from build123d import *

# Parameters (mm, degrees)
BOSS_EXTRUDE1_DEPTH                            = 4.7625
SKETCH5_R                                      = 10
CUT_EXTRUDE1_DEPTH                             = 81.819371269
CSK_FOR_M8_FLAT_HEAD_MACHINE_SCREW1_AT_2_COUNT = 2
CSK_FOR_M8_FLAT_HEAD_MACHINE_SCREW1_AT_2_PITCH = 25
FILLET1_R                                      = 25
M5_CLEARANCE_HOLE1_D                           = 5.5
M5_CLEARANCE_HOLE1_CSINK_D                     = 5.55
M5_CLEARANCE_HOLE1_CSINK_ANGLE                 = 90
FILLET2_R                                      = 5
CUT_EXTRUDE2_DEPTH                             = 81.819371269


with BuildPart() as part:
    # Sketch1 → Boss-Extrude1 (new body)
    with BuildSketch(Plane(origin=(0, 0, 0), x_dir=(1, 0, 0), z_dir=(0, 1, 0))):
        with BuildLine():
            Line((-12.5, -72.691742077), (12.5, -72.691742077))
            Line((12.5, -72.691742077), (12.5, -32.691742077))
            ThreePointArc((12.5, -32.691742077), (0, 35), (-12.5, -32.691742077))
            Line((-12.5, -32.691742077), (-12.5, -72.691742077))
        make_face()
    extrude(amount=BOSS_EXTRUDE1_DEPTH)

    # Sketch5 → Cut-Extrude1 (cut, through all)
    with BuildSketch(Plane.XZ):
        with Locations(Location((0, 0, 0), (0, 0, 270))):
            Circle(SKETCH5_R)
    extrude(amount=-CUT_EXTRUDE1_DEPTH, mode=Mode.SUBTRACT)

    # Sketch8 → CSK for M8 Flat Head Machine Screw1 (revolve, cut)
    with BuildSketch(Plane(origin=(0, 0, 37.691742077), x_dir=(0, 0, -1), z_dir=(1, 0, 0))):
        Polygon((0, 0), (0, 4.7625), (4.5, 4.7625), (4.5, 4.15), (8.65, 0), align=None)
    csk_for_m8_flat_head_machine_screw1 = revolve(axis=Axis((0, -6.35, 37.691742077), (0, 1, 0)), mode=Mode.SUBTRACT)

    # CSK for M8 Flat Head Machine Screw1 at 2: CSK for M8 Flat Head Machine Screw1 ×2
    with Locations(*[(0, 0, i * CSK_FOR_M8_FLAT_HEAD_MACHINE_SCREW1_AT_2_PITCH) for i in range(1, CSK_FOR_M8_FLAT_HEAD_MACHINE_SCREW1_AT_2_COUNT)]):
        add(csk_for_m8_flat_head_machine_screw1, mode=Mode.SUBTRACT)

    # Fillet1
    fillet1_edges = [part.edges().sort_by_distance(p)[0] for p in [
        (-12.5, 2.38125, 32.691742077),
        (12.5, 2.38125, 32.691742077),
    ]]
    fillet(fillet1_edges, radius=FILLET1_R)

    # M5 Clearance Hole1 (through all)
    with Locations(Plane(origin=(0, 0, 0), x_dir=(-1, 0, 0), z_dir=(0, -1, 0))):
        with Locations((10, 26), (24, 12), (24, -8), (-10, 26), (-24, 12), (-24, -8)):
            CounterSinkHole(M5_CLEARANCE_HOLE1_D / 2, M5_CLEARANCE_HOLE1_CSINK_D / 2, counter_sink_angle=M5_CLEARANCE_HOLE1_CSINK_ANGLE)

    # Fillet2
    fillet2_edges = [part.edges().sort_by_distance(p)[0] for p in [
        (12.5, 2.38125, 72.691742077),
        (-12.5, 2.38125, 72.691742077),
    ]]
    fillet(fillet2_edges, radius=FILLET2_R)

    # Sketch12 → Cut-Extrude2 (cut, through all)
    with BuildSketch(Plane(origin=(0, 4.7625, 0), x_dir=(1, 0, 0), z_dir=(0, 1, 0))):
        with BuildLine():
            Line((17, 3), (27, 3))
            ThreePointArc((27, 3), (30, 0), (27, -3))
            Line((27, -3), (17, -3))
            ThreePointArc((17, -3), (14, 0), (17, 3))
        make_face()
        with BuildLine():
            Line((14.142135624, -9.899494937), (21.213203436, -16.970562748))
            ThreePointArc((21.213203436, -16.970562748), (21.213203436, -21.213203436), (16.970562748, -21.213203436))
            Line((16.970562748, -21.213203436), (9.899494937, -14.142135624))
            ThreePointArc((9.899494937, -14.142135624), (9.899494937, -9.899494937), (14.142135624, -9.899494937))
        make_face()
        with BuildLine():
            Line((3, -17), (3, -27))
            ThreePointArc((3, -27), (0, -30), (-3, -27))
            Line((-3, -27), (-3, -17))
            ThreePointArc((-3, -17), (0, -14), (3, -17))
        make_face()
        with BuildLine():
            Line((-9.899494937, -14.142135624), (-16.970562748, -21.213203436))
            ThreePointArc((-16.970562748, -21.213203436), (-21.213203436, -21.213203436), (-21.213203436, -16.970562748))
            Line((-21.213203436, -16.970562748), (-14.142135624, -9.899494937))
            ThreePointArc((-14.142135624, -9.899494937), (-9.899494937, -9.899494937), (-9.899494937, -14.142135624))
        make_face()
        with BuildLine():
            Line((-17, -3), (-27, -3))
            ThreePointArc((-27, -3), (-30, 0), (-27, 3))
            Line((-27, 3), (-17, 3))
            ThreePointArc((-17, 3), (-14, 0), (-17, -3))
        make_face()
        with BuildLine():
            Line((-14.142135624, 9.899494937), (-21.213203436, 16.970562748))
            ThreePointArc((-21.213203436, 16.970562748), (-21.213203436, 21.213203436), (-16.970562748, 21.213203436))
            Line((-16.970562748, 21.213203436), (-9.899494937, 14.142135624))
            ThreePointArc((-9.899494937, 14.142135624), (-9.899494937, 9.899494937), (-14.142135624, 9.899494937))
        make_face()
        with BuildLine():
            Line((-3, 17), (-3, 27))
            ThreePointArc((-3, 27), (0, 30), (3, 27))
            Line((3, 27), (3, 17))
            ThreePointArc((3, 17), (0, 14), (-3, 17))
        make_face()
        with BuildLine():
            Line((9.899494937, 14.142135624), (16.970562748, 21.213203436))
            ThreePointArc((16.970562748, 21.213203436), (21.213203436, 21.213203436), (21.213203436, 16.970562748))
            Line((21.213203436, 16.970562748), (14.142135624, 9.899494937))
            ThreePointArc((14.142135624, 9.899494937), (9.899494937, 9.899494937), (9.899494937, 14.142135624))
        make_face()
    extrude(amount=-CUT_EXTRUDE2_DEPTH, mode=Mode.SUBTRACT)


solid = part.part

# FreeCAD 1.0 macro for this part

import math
import FreeCAD as App
import Part
import Sketcher
from FreeCAD import Vector
Q = App.Units.Quantity


def edges_at(feature, points):
    """Names of the edges that pass closest to the given points."""
    edges = feature.Shape.Edges
    near = lambda p: min(range(len(edges)), key=lambda i: edges[i].distToShape(Part.Vertex(*p))[0])
    return sorted({f"Edge{near(p) + 1}" for p in points})

doc = App.newDocument("Part")
body = doc.addObject("PartDesign::Body", "Body")

sketch1 = body.newObject("Sketcher::SketchObject", "Sketch")
sketch1.AttachmentSupport = (doc.getObject("XZ_Plane"), [""])
sketch1.MapMode = "FlatFace"
sketch1.addGeometry(Part.LineSegment(Vector(-12, 73, 0), Vector(12, 73, 0)), False)
sketch1.addGeometry(Part.LineSegment(Vector(12, 73, 0), Vector(12, 33, 0)), False)
sketch1.addGeometry(Part.ArcOfCircle(Part.Circle(Vector(0, 0, 0), Vector(0, 0, 1), 35), math.radians(111), math.radians(429)), False)
sketch1.addGeometry(Part.LineSegment(Vector(-12, 33, 0), Vector(-12, 73, 0)), False)
sketch1.addConstraint(Sketcher.Constraint("Coincident", 0, 2, 1, 1))
sketch1.addConstraint(Sketcher.Constraint("Coincident", 1, 2, 2, 2))
sketch1.addConstraint(Sketcher.Constraint("Coincident", 2, 1, 3, 1))
sketch1.addConstraint(Sketcher.Constraint("Coincident", 3, 2, 0, 1))
sketch1.addConstraint(Sketcher.Constraint("Horizontal", 0))
sketch1.addConstraint(Sketcher.Constraint("Vertical", 1))
sketch1.addConstraint(Sketcher.Constraint("Vertical", 3))
sketch1.addConstraint(Sketcher.Constraint("Coincident", 2, 3, -1, 1))
sketch1.addConstraint(Sketcher.Constraint("Horizontal", 1, 2, 2, 1))
sketch1.addConstraint(Sketcher.Constraint("Radius", 2, 35.0))
sketch1.addConstraint(Sketcher.Constraint("DistanceX", 0, 1, 0, 2, 25.0))
sketch1.addConstraint(Sketcher.Constraint("DistanceY", 1, 2, 1, 1, 40.0))
pad1 = body.newObject("PartDesign::Pad", "Pad")
pad1.Profile = sketch1
pad1.Length = 4.7625
pad1.Reversed = True

sketch2 = body.newObject("Sketcher::SketchObject", "Sketch001")
sketch2.AttachmentSupport = (doc.getObject("XZ_Plane"), [""])
sketch2.MapMode = "FlatFace"
sketch2.addGeometry(Part.Circle(Vector(0, 0, 0), Vector(0, 0, 1), 10), False)
sketch2.addConstraint(Sketcher.Constraint("Coincident", 0, 3, -1, 1))
sketch2.addConstraint(Sketcher.Constraint("Diameter", 0, 20.0))
pocket1 = body.newObject("PartDesign::Pocket", "Pocket")
pocket1.Profile = sketch2
pocket1.Type = "ThroughAll"

sketch3 = body.newObject("Sketcher::SketchObject", "Sketch002")
sketch3.AttachmentSupport = (doc.getObject("YZ_Plane"), [""])
sketch3.MapMode = "FlatFace"
sketch3.addGeometry(Part.LineSegment(Vector(4.8, 37.7, 0), Vector(0, 37.7, 0)), False)
sketch3.addGeometry(Part.LineSegment(Vector(0, 37.7, 0), Vector(0, 29, 0)), False)
sketch3.addGeometry(Part.LineSegment(Vector(0, 29, 0), Vector(4.2, 33.2, 0)), False)
sketch3.addGeometry(Part.LineSegment(Vector(4.2, 33.2, 0), Vector(4.8, 33.2, 0)), False)
sketch3.addGeometry(Part.LineSegment(Vector(4.8, 33.2, 0), Vector(4.8, 37.7, 0)), False)
sketch3.addGeometry(Part.LineSegment(Vector(0, 37.7, 0), Vector(4.8, 37.7, 0)), True)
sketch3.addConstraint(Sketcher.Constraint("Coincident", 0, 2, 1, 1))
sketch3.addConstraint(Sketcher.Constraint("Coincident", 1, 2, 2, 1))
sketch3.addConstraint(Sketcher.Constraint("Coincident", 2, 2, 3, 1))
sketch3.addConstraint(Sketcher.Constraint("Coincident", 3, 2, 4, 1))
sketch3.addConstraint(Sketcher.Constraint("Coincident", 4, 2, 0, 1))
sketch3.addConstraint(Sketcher.Constraint("Horizontal", 0))
sketch3.addConstraint(Sketcher.Constraint("Vertical", 1))
sketch3.addConstraint(Sketcher.Constraint("Horizontal", 3))
sketch3.addConstraint(Sketcher.Constraint("Vertical", 4))
sketch3.addConstraint(Sketcher.Constraint("Horizontal", 5))
sketch3.addConstraint(Sketcher.Constraint("Coincident", 5, 1, 0, 2))
sketch3.addConstraint(Sketcher.Constraint("PointOnObject", 0, 2, -2))
sketch3.addConstraint(Sketcher.Constraint("Vertical", 3, 2, 5, 2))
sketch3.addConstraint(Sketcher.Constraint("Angle", 2, Q("45 deg")))
sketch3.addConstraint(Sketcher.Constraint("DistanceY", 4, 1, 4, 2, 4.5))
sketch3.addConstraint(Sketcher.Constraint("DistanceY", 1, 2, 1, 1, 8.65))
sketch3.addConstraint(Sketcher.Constraint("DistanceX", 0, 2, 0, 1, 4.7625))
sketch3.addConstraint(Sketcher.Constraint("DistanceY", -1, 1, 0, 2, 37.691742))
groove = body.newObject("PartDesign::Groove", "Groove")
groove.Profile = sketch3
groove.ReferenceAxis = (sketch3, ["Axis0"])
groove.Angle = 360
doc.recompute()

linearpattern = body.newObject("PartDesign::LinearPattern", "LinearPattern")
linearpattern.Originals = [groove]
linearpattern.Direction = (doc.getObject("Z_Axis"), [""])
linearpattern.Mode = "offset"
linearpattern.Offset = 25
linearpattern.Occurrences = 2
body.Tip = linearpattern
doc.recompute()

fillet = body.newObject("PartDesign::Fillet", "Fillet")
fillet.Base = (linearpattern, edges_at(linearpattern, [(-12.5, 2.381, 32.692), (12.5, 2.381, 32.692)]))
fillet.Radius = 25

sketch4 = body.newObject("Sketcher::SketchObject", "Sketch003")
sketch4.AttachmentSupport = (doc.getObject("XZ_Plane"), [""])
sketch4.MapMode = "FlatFace"
sketch4.addGeometry(Part.Circle(Vector(-10, -26, 0), Vector(0, 0, 1), 2.8), False)
sketch4.addGeometry(Part.Circle(Vector(-24, -12, 0), Vector(0, 0, 1), 2.8), False)
sketch4.addGeometry(Part.Circle(Vector(-24, 8, 0), Vector(0, 0, 1), 2.8), False)
sketch4.addGeometry(Part.Circle(Vector(10, -26, 0), Vector(0, 0, 1), 2.8), False)
sketch4.addGeometry(Part.Circle(Vector(24, -12, 0), Vector(0, 0, 1), 2.8), False)
sketch4.addGeometry(Part.Circle(Vector(24, 8, 0), Vector(0, 0, 1), 2.8), False)
sketch4.addConstraint(Sketcher.Constraint("Equal", 0, 1))
sketch4.addConstraint(Sketcher.Constraint("Equal", 1, 2))
sketch4.addConstraint(Sketcher.Constraint("Equal", 2, 3))
sketch4.addConstraint(Sketcher.Constraint("Equal", 3, 4))
sketch4.addConstraint(Sketcher.Constraint("Equal", 4, 5))
sketch4.addConstraint(Sketcher.Constraint("Symmetric", 0, 3, 3, 3, -2))
sketch4.addConstraint(Sketcher.Constraint("Symmetric", 1, 3, 4, 3, -2))
sketch4.addConstraint(Sketcher.Constraint("Symmetric", 2, 3, 5, 3, -2))
sketch4.addConstraint(Sketcher.Constraint("Vertical", 1, 3, 2, 3))
sketch4.addConstraint(Sketcher.Constraint("Diameter", 0, 5.5))
sketch4.addConstraint(Sketcher.Constraint("DistanceX", 0, 3, -1, 1, 10.0))
sketch4.addConstraint(Sketcher.Constraint("DistanceY", 0, 3, -1, 1, 26.0))
sketch4.addConstraint(Sketcher.Constraint("DistanceX", 1, 3, -1, 1, 24.0))
sketch4.addConstraint(Sketcher.Constraint("DistanceY", 1, 3, -1, 1, 12.0))
sketch4.addConstraint(Sketcher.Constraint("DistanceY", -1, 1, 2, 3, 8.0))
doc.recompute()
hole = body.newObject("PartDesign::Hole", "Hole")
hole.Profile = sketch4
hole.ThreadType = "None"
hole.Diameter = 5.5
hole.DepthType = "ThroughAll"
hole.HoleCutType = "Countersink"
hole.HoleCutDiameter = 5.55
hole.HoleCutCountersinkAngle = 90
doc.recompute()

fillet2 = body.newObject("PartDesign::Fillet", "Fillet001")
fillet2.Base = (hole, edges_at(hole, [(12.5, 2.381, 72.692), (-12.5, 2.381, 72.692)]))
fillet2.Radius = 5

sketch5 = body.newObject("Sketcher::SketchObject", "Sketch004")
sketch5.AttachmentSupport = (doc.getObject("XZ_Plane"), [""])
sketch5.MapMode = "FlatFace"
sketch5.AttachmentOffset = App.Placement(Vector(0, 0, -4.7625), App.Rotation())
sketch5.addGeometry(Part.LineSegment(Vector(27, -3, 0), Vector(17, -3, 0)), False)
sketch5.addGeometry(Part.ArcOfCircle(Part.Circle(Vector(17, 0, 0), Vector(0, 0, 1), 3), math.radians(90), math.radians(270)), False)
sketch5.addGeometry(Part.LineSegment(Vector(17, 3, 0), Vector(27, 3, 0)), False)
sketch5.addGeometry(Part.ArcOfCircle(Part.Circle(Vector(27, 0, 0), Vector(0, 0, 1), 3), math.radians(-90), math.radians(90)), False)
sketch5.addGeometry(Part.LineSegment(Vector(21.2, 17, 0), Vector(14.1, 9.9, 0)), False)
sketch5.addGeometry(Part.ArcOfCircle(Part.Circle(Vector(12, 12, 0), Vector(0, 0, 1), 3), math.radians(135), math.radians(315)), False)
sketch5.addGeometry(Part.LineSegment(Vector(9.9, 14.1, 0), Vector(17, 21.2, 0)), False)
sketch5.addGeometry(Part.ArcOfCircle(Part.Circle(Vector(19.1, 19.1, 0), Vector(0, 0, 1), 3), math.radians(-45), math.radians(135)), False)
sketch5.addGeometry(Part.LineSegment(Vector(3, 27, 0), Vector(3, 17, 0)), False)
sketch5.addGeometry(Part.ArcOfCircle(Part.Circle(Vector(0, 17, 0), Vector(0, 0, 1), 3), math.radians(180), math.radians(360)), False)
sketch5.addGeometry(Part.LineSegment(Vector(-3, 17, 0), Vector(-3, 27, 0)), False)
sketch5.addGeometry(Part.ArcOfCircle(Part.Circle(Vector(0, 27, 0), Vector(0, 0, 1), 3), math.radians(0), math.radians(180)), False)
sketch5.addGeometry(Part.LineSegment(Vector(-17, 21.2, 0), Vector(-9.9, 14.1, 0)), False)
sketch5.addGeometry(Part.ArcOfCircle(Part.Circle(Vector(-12, 12, 0), Vector(0, 0, 1), 3), math.radians(-135), math.radians(45)), False)
sketch5.addGeometry(Part.LineSegment(Vector(-14.1, 9.9, 0), Vector(-21.2, 17, 0)), False)
sketch5.addGeometry(Part.ArcOfCircle(Part.Circle(Vector(-19.1, 19.1, 0), Vector(0, 0, 1), 3), math.radians(45), math.radians(225)), False)
sketch5.addGeometry(Part.LineSegment(Vector(-27, 3, 0), Vector(-17, 3, 0)), False)
sketch5.addGeometry(Part.ArcOfCircle(Part.Circle(Vector(-17, 0, 0), Vector(0, 0, 1), 3), math.radians(-90), math.radians(90)), False)
sketch5.addGeometry(Part.LineSegment(Vector(-17, -3, 0), Vector(-27, -3, 0)), False)
sketch5.addGeometry(Part.ArcOfCircle(Part.Circle(Vector(-27, 0, 0), Vector(0, 0, 1), 3), math.radians(90), math.radians(270)), False)
sketch5.addGeometry(Part.LineSegment(Vector(-21.2, -17, 0), Vector(-14.1, -9.9, 0)), False)
sketch5.addGeometry(Part.ArcOfCircle(Part.Circle(Vector(-12, -12, 0), Vector(0, 0, 1), 3), math.radians(-45), math.radians(135)), False)
sketch5.addGeometry(Part.LineSegment(Vector(-9.9, -14.1, 0), Vector(-17, -21.2, 0)), False)
sketch5.addGeometry(Part.ArcOfCircle(Part.Circle(Vector(-19.1, -19.1, 0), Vector(0, 0, 1), 3), math.radians(135), math.radians(315)), False)
sketch5.addGeometry(Part.LineSegment(Vector(-3, -27, 0), Vector(-3, -17, 0)), False)
sketch5.addGeometry(Part.ArcOfCircle(Part.Circle(Vector(0, -17, 0), Vector(0, 0, 1), 3), math.radians(0), math.radians(180)), False)
sketch5.addGeometry(Part.LineSegment(Vector(3, -17, 0), Vector(3, -27, 0)), False)
sketch5.addGeometry(Part.ArcOfCircle(Part.Circle(Vector(0, -27, 0), Vector(0, 0, 1), 3), math.radians(180), math.radians(360)), False)
sketch5.addGeometry(Part.LineSegment(Vector(17, -21.2, 0), Vector(9.9, -14.1, 0)), False)
sketch5.addGeometry(Part.ArcOfCircle(Part.Circle(Vector(12, -12, 0), Vector(0, 0, 1), 3), math.radians(45), math.radians(225)), False)
sketch5.addGeometry(Part.LineSegment(Vector(14.1, -9.9, 0), Vector(21.2, -17, 0)), False)
sketch5.addGeometry(Part.ArcOfCircle(Part.Circle(Vector(19.1, -19.1, 0), Vector(0, 0, 1), 3), math.radians(-135), math.radians(45)), False)
sketch5.addConstraint(Sketcher.Constraint("Tangent", 0, 2, 1, 2))
sketch5.addConstraint(Sketcher.Constraint("Tangent", 1, 1, 2, 1))
sketch5.addConstraint(Sketcher.Constraint("Tangent", 2, 2, 3, 2))
sketch5.addConstraint(Sketcher.Constraint("Tangent", 3, 1, 0, 1))
sketch5.addConstraint(Sketcher.Constraint("Tangent", 4, 2, 5, 2))
sketch5.addConstraint(Sketcher.Constraint("Tangent", 5, 1, 6, 1))
sketch5.addConstraint(Sketcher.Constraint("Tangent", 6, 2, 7, 2))
sketch5.addConstraint(Sketcher.Constraint("Tangent", 7, 1, 4, 1))
sketch5.addConstraint(Sketcher.Constraint("Tangent", 8, 2, 9, 2))
sketch5.addConstraint(Sketcher.Constraint("Tangent", 9, 1, 10, 1))
sketch5.addConstraint(Sketcher.Constraint("Tangent", 10, 2, 11, 2))
sketch5.addConstraint(Sketcher.Constraint("Tangent", 11, 1, 8, 1))
sketch5.addConstraint(Sketcher.Constraint("Tangent", 12, 2, 13, 2))
sketch5.addConstraint(Sketcher.Constraint("Tangent", 13, 1, 14, 1))
sketch5.addConstraint(Sketcher.Constraint("Tangent", 14, 2, 15, 2))
sketch5.addConstraint(Sketcher.Constraint("Tangent", 15, 1, 12, 1))
sketch5.addConstraint(Sketcher.Constraint("Tangent", 16, 2, 17, 2))
sketch5.addConstraint(Sketcher.Constraint("Tangent", 17, 1, 18, 1))
sketch5.addConstraint(Sketcher.Constraint("Tangent", 18, 2, 19, 2))
sketch5.addConstraint(Sketcher.Constraint("Tangent", 19, 1, 16, 1))
sketch5.addConstraint(Sketcher.Constraint("Tangent", 20, 2, 21, 2))
sketch5.addConstraint(Sketcher.Constraint("Tangent", 21, 1, 22, 1))
sketch5.addConstraint(Sketcher.Constraint("Tangent", 22, 2, 23, 2))
sketch5.addConstraint(Sketcher.Constraint("Tangent", 23, 1, 20, 1))
sketch5.addConstraint(Sketcher.Constraint("Tangent", 24, 2, 25, 2))
sketch5.addConstraint(Sketcher.Constraint("Tangent", 25, 1, 26, 1))
sketch5.addConstraint(Sketcher.Constraint("Tangent", 26, 2, 27, 2))
sketch5.addConstraint(Sketcher.Constraint("Tangent", 27, 1, 24, 1))
sketch5.addConstraint(Sketcher.Constraint("Tangent", 28, 2, 29, 2))
sketch5.addConstraint(Sketcher.Constraint("Tangent", 29, 1, 30, 1))
sketch5.addConstraint(Sketcher.Constraint("Tangent", 30, 2, 31, 2))
sketch5.addConstraint(Sketcher.Constraint("Tangent", 31, 1, 28, 1))
sketch5.addConstraint(Sketcher.Constraint("Horizontal", 0))
sketch5.addConstraint(Sketcher.Constraint("Horizontal", 2))
sketch5.addConstraint(Sketcher.Constraint("Vertical", 8))
sketch5.addConstraint(Sketcher.Constraint("Vertical", 10))
sketch5.addConstraint(Sketcher.Constraint("Horizontal", 16))
sketch5.addConstraint(Sketcher.Constraint("Horizontal", 18))
sketch5.addConstraint(Sketcher.Constraint("Vertical", 24))
sketch5.addConstraint(Sketcher.Constraint("Vertical", 26))
sketch5.addConstraint(Sketcher.Constraint("Equal", 3, 5))
sketch5.addConstraint(Sketcher.Constraint("Equal", 5, 7))
sketch5.addConstraint(Sketcher.Constraint("Equal", 7, 9))
sketch5.addConstraint(Sketcher.Constraint("Equal", 11, 13))
sketch5.addConstraint(Sketcher.Constraint("Equal", 13, 15))
sketch5.addConstraint(Sketcher.Constraint("Equal", 15, 17))
sketch5.addConstraint(Sketcher.Constraint("Equal", 19, 21))
sketch5.addConstraint(Sketcher.Constraint("Equal", 21, 23))
sketch5.addConstraint(Sketcher.Constraint("Equal", 23, 25))
sketch5.addConstraint(Sketcher.Constraint("Equal", 27, 29))
sketch5.addConstraint(Sketcher.Constraint("Equal", 29, 31))
sketch5.addConstraint(Sketcher.Constraint("Symmetric", 1, 3, 17, 3, -1, 1))
sketch5.addConstraint(Sketcher.Constraint("Symmetric", 5, 3, 21, 3, -1, 1))
sketch5.addConstraint(Sketcher.Constraint("Symmetric", 7, 3, 23, 3, -1, 1))
sketch5.addConstraint(Sketcher.Constraint("Symmetric", 9, 3, 25, 3, -1, 1))
sketch5.addConstraint(Sketcher.Constraint("Symmetric", 13, 3, 29, 3, -1, 1))
sketch5.addConstraint(Sketcher.Constraint("Symmetric", 15, 3, 31, 3, -1, 1))
sketch5.addConstraint(Sketcher.Constraint("Symmetric", 5, 3, 13, 3, -2))
sketch5.addConstraint(Sketcher.Constraint("Symmetric", 7, 3, 15, 3, -2))
sketch5.addConstraint(Sketcher.Constraint("Symmetric", 3, 3, 19, 3, -2))
sketch5.addConstraint(Sketcher.Constraint("Symmetric", 11, 3, 27, 3, -1))
sketch5.addConstraint(Sketcher.Constraint("Perpendicular", 6, 12))
sketch5.addConstraint(Sketcher.Constraint("Equal", 18, 8))
sketch5.addConstraint(Sketcher.Constraint("Radius", 1, 3.0))
sketch5.addConstraint(Sketcher.Constraint("DistanceX", 0, 2, 0, 1, 10.0))
sketch5.addConstraint(Sketcher.Constraint("Distance", 4, 10.0))
sketch5.addConstraint(Sketcher.Constraint("DistanceX", -1, 1, 1, 3, 17.0))
sketch5.addConstraint(Sketcher.Constraint("DistanceY", -1, 1, 9, 3, 17.0))
sketch5.addConstraint(Sketcher.Constraint("DistanceX", 13, 3, 7, 3, 31.112698))
sketch5.addConstraint(Sketcher.Constraint("DistanceY", 23, 3, 13, 3, 31.112698))
pocket2 = body.newObject("PartDesign::Pocket", "Pocket001")
pocket2.Profile = sketch5
pocket2.Type = "ThroughAll"
pocket2.Reversed = True

doc.recompute()
